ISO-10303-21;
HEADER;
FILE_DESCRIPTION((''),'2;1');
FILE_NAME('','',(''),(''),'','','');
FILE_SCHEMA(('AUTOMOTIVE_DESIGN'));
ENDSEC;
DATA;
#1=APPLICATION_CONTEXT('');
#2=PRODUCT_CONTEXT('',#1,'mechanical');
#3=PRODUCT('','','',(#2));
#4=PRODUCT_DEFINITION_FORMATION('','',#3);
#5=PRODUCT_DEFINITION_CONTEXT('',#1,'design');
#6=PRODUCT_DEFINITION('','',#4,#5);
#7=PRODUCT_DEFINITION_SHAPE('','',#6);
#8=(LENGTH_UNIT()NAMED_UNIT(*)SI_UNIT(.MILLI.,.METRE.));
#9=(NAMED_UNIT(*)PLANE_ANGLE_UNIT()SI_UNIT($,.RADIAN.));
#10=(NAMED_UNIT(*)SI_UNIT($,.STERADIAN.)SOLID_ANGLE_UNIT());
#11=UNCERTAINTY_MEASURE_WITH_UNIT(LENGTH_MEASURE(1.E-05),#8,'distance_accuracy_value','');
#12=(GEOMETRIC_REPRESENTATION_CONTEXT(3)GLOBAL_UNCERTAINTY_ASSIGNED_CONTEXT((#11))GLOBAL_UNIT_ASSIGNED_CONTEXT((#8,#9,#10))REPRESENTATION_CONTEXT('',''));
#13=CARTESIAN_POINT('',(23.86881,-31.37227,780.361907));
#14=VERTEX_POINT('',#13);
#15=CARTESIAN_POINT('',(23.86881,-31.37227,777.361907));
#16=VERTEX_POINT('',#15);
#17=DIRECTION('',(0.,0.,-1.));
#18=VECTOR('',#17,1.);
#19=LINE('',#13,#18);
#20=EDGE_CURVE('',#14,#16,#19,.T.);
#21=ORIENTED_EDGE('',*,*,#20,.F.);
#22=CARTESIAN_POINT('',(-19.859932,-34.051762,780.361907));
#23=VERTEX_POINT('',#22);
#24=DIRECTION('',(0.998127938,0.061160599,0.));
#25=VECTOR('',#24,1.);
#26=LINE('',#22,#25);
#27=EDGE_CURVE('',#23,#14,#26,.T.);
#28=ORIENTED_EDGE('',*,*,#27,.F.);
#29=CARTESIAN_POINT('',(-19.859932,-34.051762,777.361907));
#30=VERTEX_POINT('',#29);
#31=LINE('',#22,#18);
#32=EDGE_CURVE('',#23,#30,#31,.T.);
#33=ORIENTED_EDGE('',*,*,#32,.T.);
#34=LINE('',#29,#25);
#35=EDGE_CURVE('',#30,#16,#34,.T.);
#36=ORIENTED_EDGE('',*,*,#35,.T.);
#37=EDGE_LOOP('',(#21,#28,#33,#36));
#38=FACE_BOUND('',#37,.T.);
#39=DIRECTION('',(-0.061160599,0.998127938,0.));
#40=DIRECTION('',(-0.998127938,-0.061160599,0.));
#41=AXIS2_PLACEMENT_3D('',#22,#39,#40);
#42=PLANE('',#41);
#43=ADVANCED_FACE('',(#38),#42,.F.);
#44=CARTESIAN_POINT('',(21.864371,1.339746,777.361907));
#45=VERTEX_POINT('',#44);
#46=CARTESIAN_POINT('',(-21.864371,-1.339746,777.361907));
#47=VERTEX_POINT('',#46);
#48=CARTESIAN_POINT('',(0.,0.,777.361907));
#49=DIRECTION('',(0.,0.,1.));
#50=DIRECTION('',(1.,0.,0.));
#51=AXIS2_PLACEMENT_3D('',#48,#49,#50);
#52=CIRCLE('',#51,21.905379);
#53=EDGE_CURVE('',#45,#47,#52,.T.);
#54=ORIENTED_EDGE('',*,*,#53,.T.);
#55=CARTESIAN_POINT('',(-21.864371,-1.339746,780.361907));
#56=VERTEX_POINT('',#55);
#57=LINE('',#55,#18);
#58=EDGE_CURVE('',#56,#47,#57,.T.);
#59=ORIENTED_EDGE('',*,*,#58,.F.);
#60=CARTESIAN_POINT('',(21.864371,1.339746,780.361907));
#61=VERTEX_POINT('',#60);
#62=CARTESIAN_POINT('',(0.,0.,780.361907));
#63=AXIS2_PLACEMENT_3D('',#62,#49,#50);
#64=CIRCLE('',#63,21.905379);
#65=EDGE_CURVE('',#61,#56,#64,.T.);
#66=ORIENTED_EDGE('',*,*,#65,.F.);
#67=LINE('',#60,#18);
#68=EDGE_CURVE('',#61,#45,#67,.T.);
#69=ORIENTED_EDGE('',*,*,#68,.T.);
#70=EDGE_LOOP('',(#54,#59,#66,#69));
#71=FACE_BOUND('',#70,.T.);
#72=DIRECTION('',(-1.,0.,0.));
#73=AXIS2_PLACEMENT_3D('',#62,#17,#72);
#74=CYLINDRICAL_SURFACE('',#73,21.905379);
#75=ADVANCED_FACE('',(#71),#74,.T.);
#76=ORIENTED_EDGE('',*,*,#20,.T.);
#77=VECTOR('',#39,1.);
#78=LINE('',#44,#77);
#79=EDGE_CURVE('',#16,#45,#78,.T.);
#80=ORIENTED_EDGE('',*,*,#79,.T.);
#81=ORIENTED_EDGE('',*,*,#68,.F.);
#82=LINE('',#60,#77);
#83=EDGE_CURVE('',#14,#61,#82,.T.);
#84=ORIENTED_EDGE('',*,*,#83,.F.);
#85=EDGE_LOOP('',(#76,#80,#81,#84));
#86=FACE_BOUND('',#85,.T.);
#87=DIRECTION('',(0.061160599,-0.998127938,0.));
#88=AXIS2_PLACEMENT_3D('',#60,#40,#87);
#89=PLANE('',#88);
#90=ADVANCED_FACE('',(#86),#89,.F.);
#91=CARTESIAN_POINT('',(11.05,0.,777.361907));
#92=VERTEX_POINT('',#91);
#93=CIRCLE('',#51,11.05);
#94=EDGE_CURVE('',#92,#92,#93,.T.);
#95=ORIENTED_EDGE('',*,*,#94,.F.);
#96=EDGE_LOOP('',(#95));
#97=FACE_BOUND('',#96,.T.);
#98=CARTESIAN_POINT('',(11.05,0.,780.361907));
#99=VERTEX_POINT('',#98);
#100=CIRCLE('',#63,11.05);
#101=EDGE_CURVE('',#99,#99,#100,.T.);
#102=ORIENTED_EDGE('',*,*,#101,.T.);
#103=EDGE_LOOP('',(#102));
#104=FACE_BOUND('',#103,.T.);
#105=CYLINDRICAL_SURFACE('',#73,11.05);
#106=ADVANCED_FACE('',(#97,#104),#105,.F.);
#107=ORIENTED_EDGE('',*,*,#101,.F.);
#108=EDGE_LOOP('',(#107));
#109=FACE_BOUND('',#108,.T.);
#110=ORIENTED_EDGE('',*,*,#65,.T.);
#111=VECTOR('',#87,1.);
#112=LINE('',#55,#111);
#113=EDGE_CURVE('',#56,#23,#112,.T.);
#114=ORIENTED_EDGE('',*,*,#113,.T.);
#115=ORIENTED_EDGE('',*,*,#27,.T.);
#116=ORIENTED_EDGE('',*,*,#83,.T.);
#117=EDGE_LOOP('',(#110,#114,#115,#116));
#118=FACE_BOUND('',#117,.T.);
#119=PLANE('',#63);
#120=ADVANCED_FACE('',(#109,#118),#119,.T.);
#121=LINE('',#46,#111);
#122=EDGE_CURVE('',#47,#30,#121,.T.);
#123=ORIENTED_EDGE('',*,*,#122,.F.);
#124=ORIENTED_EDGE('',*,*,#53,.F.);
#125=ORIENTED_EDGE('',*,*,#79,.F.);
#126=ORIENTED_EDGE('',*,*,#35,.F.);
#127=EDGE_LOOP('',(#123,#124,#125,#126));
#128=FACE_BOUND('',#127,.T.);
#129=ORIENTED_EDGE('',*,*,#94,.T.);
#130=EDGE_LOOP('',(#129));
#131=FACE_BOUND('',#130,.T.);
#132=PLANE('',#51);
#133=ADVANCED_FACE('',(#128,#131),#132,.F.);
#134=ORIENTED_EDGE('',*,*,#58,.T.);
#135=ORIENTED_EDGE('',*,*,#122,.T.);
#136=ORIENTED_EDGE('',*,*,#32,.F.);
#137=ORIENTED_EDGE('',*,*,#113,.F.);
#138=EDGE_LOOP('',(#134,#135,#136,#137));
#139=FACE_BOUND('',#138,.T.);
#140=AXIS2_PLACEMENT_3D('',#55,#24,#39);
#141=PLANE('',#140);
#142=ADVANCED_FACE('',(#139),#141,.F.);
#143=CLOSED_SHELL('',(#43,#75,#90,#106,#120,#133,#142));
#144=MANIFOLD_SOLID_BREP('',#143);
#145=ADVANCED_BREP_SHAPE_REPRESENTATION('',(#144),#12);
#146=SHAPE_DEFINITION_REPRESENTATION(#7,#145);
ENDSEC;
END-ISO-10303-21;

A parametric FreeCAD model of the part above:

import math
import FreeCAD as App
import Part
import Sketcher
from FreeCAD import Vector
Q = App.Units.Quantity

doc = App.newDocument("Part")
params = doc.addObject("Spreadsheet::Sheet", "Params")
for row, (alias, value) in enumerate([
    ("sketch1_diameter", "22.1 mm"),
    ("pad1_length", "3 mm"),
], start=1):
    params.set(f"A{row}", alias)
    params.set(f"B{row}", "=" + value)
    params.setAlias(f"B{row}", alias)

body = doc.addObject("PartDesign::Body", "Body")

sketch1 = body.newObject("Sketcher::SketchObject", "Sketch")
sketch1.AttachmentSupport = (doc.getObject("XY_Plane"), [""])
sketch1.MapMode = "FlatFace"
sketch1.AttachmentOffset = App.Placement(Vector(0, 0, 777.361907), App.Rotation())
sketch1.addGeometry([
    Part.LineSegment(Vector(-22, -1, 0), Vector(-20, -34, 0)),
    Part.LineSegment(Vector(-20, -34, 0), Vector(24, -31, 0)),
    Part.LineSegment(Vector(24, -31, 0), Vector(22, 1, 0)),
    Part.ArcOfCircle(Part.Circle(Vector(0, 0, 0), Vector(0, 0, 1), 22), math.radians(4), math.radians(184)),
    Part.Circle(Vector(0, 0, 0), Vector(0, 0, 1), 11),
], False)
sketch1.addConstraint([
    Sketcher.Constraint("Coincident", 0, 2, 1, 1),
    Sketcher.Constraint("Coincident", 1, 2, 2, 1),
    Sketcher.Constraint("Tangent", 2, 2, 3, 1),
    Sketcher.Constraint("Tangent", 3, 2, 0, 1),
    Sketcher.Constraint("Coincident", 3, 3, -1, 1),
    Sketcher.Constraint("Coincident", 4, 3, -1, 1),
    Sketcher.Constraint("Perpendicular", 0, 1),
    Sketcher.Constraint("Perpendicular", 1, 2),
    Sketcher.Constraint("Diameter", 4, Q("22.1 mm")),
    Sketcher.Constraint("Radius", 3, Q("21.905379 mm")),
    Sketcher.Constraint("Distance", 0, Q("32.773369 mm")),
    Sketcher.Constraint("DistanceY", 0, 2, -1, 1, Q("34.051762 mm")),
])
sketch1.setExpression("Constraints[8]", "Params.sketch1_diameter")
pad1 = body.newObject("PartDesign::Pad", "Pad")
pad1.Profile = sketch1
pad1.setExpression("Length", "Params.pad1_length")

doc.recompute()
